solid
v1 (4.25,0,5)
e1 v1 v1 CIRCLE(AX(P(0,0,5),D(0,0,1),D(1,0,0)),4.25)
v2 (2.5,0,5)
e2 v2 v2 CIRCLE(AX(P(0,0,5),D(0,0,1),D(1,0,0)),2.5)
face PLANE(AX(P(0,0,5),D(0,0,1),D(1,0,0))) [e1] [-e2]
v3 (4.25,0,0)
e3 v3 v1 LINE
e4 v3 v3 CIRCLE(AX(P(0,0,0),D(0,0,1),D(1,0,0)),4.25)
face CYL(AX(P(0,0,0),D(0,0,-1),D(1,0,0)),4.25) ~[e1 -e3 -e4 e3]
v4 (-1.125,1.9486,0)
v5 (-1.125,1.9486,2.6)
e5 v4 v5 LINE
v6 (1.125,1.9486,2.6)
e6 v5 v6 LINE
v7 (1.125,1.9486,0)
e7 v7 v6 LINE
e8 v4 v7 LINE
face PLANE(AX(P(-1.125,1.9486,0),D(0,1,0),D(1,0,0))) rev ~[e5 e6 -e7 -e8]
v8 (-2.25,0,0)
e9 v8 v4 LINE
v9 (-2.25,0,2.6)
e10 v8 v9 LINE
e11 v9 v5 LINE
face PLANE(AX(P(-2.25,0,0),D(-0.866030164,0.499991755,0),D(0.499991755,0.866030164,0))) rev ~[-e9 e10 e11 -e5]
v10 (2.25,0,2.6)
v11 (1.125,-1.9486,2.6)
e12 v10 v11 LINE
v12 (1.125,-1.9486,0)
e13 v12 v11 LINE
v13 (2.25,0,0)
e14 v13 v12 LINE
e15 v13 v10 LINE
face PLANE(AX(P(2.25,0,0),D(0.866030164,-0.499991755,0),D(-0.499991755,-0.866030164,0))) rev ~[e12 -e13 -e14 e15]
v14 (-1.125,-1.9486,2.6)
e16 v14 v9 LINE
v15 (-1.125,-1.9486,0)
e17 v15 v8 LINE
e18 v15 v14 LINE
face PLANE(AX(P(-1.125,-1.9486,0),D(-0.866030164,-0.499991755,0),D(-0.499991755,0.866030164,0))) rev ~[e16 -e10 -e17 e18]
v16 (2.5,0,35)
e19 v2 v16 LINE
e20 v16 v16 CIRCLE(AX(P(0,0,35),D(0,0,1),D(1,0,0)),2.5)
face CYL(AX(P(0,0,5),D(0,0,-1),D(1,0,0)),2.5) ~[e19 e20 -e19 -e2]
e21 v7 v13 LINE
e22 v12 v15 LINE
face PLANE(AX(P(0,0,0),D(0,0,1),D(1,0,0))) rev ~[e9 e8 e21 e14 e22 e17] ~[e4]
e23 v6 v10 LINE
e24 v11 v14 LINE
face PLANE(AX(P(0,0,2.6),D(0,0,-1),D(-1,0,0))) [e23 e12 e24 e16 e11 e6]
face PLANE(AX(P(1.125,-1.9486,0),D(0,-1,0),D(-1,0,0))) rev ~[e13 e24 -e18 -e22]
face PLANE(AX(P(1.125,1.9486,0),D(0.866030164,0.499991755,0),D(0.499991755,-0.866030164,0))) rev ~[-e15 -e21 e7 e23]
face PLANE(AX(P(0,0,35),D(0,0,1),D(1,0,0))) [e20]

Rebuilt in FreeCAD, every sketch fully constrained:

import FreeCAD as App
import Part
import Sketcher
Q = App.Units.Quantity


def add_polygon(sketch, points):
    """Adds a closed chain of lines whose ends are joined by coincident constraints."""
    first, n = sketch.GeometryCount, len(points)
    for a, b in zip(points, points[1:] + points[:1]):
        sketch.addGeometry(Part.LineSegment(App.Vector(*a, 0), App.Vector(*b, 0)), False)
    for i in range(n):
        sketch.addConstraint(Sketcher.Constraint("Coincident", first + i, 2, first + (i + 1) % n, 1))

doc = App.newDocument("Part")
params = doc.addObject("Spreadsheet::Sheet", "Params")
for row, (alias, value) in enumerate([
    ("sketch1_diameter", "8.5 mm"),
    ("pad1_length", "5 mm"),
    ("sketch2_diameter", "5 mm"),
    ("pad2_length", "30 mm"),
    ("sketch3_width", "2.25 mm"),
    ("pocket1_length", "2.6 mm"),
], start=1):
    params.set(f"A{row}", alias)
    params.set(f"B{row}", "=" + value)
    params.setAlias(f"B{row}", alias)

body = doc.addObject("PartDesign::Body", "Body")

# Sketch on XY plane
sketch1 = doc.addObject("Sketcher::SketchObject", "Sketch")
body.addObject(sketch1)
sketch1.AttachmentSupport = (doc.XY_Plane, [""])
sketch1.MapMode = "FlatFace"
sketch1.addGeometry(Part.Circle(App.Vector(0, 0, 0), App.Vector(0, 0, 1), 4.2), False)
sketch1.addConstraint([
    Sketcher.Constraint("Coincident", 0, 3, -1, 1),
    Sketcher.Constraint("Diameter", 0, 8.5),
])
sketch1.setExpression("Constraints[1]", "Params.sketch1_diameter")
pad1 = doc.addObject("PartDesign::Pad", "Pad")
body.addObject(pad1)
pad1.Profile = sketch1
pad1.setExpression("Length", "Params.pad1_length")

# Sketch on XY plane
sketch2 = doc.addObject("Sketcher::SketchObject", "Sketch001")
body.addObject(sketch2)
sketch2.AttachmentSupport = (doc.XY_Plane, [""])
sketch2.MapMode = "FlatFace"
sketch2.AttachmentOffset = App.Placement(App.Vector(0, 0, 5), App.Rotation())
sketch2.addGeometry(Part.Circle(App.Vector(0, 0, 0), App.Vector(0, 0, 1), 2.5), False)
sketch2.addConstraint([
    Sketcher.Constraint("Coincident", 0, 3, -1, 1),
    Sketcher.Constraint("Diameter", 0, 5.0),
])
sketch2.setExpression("Constraints[1]", "Params.sketch2_diameter")
pad2 = doc.addObject("PartDesign::Pad", "Pad001")
body.addObject(pad2)
pad2.Profile = sketch2
pad2.setExpression("Length", "Params.pad2_length")

# Sketch on XY plane
sketch3 = doc.addObject("Sketcher::SketchObject", "Sketch002")
body.addObject(sketch3)
sketch3.AttachmentSupport = (doc.XY_Plane, [""])
sketch3.MapMode = "FlatFace"
add_polygon(sketch3, [(-1.1, -1.9), (-2.2, 0), (-1.1, 1.9), (1.1, 1.9), (2.2, 0), (1.1, -1.9)])  # lines 0-5
sketch3.addConstraint([
    Sketcher.Constraint("Horizontal", 2),
    Sketcher.Constraint("Horizontal", 5),
    Sketcher.Constraint("Symmetric", 0, 2, 3, 2, -1, 1),
    Sketcher.Constraint("Symmetric", 1, 2, 4, 2, -1, 1),
    Sketcher.Constraint("PointOnObject", 0, 2, -1),
    Sketcher.Constraint("Parallel", 0, 3),
    Sketcher.Constraint("Vertical", 2, 2, 4, 2),
    Sketcher.Constraint("Angle", 0, Q("119.9995 deg")),
    Sketcher.Constraint("DistanceX", 2, 1, 2, 2, 2.25),
    Sketcher.Constraint("DistanceX", 0, 2, 3, 2, 4.5),
])
sketch3.setExpression("Constraints[14]", "Params.sketch3_width")
pocket1 = doc.addObject("PartDesign::Pocket", "Pocket")
body.addObject(pocket1)
pocket1.Profile = sketch3
pocket1.setExpression("Length", "Params.pocket1_length")
pocket1.Reversed = True

doc.recompute()
